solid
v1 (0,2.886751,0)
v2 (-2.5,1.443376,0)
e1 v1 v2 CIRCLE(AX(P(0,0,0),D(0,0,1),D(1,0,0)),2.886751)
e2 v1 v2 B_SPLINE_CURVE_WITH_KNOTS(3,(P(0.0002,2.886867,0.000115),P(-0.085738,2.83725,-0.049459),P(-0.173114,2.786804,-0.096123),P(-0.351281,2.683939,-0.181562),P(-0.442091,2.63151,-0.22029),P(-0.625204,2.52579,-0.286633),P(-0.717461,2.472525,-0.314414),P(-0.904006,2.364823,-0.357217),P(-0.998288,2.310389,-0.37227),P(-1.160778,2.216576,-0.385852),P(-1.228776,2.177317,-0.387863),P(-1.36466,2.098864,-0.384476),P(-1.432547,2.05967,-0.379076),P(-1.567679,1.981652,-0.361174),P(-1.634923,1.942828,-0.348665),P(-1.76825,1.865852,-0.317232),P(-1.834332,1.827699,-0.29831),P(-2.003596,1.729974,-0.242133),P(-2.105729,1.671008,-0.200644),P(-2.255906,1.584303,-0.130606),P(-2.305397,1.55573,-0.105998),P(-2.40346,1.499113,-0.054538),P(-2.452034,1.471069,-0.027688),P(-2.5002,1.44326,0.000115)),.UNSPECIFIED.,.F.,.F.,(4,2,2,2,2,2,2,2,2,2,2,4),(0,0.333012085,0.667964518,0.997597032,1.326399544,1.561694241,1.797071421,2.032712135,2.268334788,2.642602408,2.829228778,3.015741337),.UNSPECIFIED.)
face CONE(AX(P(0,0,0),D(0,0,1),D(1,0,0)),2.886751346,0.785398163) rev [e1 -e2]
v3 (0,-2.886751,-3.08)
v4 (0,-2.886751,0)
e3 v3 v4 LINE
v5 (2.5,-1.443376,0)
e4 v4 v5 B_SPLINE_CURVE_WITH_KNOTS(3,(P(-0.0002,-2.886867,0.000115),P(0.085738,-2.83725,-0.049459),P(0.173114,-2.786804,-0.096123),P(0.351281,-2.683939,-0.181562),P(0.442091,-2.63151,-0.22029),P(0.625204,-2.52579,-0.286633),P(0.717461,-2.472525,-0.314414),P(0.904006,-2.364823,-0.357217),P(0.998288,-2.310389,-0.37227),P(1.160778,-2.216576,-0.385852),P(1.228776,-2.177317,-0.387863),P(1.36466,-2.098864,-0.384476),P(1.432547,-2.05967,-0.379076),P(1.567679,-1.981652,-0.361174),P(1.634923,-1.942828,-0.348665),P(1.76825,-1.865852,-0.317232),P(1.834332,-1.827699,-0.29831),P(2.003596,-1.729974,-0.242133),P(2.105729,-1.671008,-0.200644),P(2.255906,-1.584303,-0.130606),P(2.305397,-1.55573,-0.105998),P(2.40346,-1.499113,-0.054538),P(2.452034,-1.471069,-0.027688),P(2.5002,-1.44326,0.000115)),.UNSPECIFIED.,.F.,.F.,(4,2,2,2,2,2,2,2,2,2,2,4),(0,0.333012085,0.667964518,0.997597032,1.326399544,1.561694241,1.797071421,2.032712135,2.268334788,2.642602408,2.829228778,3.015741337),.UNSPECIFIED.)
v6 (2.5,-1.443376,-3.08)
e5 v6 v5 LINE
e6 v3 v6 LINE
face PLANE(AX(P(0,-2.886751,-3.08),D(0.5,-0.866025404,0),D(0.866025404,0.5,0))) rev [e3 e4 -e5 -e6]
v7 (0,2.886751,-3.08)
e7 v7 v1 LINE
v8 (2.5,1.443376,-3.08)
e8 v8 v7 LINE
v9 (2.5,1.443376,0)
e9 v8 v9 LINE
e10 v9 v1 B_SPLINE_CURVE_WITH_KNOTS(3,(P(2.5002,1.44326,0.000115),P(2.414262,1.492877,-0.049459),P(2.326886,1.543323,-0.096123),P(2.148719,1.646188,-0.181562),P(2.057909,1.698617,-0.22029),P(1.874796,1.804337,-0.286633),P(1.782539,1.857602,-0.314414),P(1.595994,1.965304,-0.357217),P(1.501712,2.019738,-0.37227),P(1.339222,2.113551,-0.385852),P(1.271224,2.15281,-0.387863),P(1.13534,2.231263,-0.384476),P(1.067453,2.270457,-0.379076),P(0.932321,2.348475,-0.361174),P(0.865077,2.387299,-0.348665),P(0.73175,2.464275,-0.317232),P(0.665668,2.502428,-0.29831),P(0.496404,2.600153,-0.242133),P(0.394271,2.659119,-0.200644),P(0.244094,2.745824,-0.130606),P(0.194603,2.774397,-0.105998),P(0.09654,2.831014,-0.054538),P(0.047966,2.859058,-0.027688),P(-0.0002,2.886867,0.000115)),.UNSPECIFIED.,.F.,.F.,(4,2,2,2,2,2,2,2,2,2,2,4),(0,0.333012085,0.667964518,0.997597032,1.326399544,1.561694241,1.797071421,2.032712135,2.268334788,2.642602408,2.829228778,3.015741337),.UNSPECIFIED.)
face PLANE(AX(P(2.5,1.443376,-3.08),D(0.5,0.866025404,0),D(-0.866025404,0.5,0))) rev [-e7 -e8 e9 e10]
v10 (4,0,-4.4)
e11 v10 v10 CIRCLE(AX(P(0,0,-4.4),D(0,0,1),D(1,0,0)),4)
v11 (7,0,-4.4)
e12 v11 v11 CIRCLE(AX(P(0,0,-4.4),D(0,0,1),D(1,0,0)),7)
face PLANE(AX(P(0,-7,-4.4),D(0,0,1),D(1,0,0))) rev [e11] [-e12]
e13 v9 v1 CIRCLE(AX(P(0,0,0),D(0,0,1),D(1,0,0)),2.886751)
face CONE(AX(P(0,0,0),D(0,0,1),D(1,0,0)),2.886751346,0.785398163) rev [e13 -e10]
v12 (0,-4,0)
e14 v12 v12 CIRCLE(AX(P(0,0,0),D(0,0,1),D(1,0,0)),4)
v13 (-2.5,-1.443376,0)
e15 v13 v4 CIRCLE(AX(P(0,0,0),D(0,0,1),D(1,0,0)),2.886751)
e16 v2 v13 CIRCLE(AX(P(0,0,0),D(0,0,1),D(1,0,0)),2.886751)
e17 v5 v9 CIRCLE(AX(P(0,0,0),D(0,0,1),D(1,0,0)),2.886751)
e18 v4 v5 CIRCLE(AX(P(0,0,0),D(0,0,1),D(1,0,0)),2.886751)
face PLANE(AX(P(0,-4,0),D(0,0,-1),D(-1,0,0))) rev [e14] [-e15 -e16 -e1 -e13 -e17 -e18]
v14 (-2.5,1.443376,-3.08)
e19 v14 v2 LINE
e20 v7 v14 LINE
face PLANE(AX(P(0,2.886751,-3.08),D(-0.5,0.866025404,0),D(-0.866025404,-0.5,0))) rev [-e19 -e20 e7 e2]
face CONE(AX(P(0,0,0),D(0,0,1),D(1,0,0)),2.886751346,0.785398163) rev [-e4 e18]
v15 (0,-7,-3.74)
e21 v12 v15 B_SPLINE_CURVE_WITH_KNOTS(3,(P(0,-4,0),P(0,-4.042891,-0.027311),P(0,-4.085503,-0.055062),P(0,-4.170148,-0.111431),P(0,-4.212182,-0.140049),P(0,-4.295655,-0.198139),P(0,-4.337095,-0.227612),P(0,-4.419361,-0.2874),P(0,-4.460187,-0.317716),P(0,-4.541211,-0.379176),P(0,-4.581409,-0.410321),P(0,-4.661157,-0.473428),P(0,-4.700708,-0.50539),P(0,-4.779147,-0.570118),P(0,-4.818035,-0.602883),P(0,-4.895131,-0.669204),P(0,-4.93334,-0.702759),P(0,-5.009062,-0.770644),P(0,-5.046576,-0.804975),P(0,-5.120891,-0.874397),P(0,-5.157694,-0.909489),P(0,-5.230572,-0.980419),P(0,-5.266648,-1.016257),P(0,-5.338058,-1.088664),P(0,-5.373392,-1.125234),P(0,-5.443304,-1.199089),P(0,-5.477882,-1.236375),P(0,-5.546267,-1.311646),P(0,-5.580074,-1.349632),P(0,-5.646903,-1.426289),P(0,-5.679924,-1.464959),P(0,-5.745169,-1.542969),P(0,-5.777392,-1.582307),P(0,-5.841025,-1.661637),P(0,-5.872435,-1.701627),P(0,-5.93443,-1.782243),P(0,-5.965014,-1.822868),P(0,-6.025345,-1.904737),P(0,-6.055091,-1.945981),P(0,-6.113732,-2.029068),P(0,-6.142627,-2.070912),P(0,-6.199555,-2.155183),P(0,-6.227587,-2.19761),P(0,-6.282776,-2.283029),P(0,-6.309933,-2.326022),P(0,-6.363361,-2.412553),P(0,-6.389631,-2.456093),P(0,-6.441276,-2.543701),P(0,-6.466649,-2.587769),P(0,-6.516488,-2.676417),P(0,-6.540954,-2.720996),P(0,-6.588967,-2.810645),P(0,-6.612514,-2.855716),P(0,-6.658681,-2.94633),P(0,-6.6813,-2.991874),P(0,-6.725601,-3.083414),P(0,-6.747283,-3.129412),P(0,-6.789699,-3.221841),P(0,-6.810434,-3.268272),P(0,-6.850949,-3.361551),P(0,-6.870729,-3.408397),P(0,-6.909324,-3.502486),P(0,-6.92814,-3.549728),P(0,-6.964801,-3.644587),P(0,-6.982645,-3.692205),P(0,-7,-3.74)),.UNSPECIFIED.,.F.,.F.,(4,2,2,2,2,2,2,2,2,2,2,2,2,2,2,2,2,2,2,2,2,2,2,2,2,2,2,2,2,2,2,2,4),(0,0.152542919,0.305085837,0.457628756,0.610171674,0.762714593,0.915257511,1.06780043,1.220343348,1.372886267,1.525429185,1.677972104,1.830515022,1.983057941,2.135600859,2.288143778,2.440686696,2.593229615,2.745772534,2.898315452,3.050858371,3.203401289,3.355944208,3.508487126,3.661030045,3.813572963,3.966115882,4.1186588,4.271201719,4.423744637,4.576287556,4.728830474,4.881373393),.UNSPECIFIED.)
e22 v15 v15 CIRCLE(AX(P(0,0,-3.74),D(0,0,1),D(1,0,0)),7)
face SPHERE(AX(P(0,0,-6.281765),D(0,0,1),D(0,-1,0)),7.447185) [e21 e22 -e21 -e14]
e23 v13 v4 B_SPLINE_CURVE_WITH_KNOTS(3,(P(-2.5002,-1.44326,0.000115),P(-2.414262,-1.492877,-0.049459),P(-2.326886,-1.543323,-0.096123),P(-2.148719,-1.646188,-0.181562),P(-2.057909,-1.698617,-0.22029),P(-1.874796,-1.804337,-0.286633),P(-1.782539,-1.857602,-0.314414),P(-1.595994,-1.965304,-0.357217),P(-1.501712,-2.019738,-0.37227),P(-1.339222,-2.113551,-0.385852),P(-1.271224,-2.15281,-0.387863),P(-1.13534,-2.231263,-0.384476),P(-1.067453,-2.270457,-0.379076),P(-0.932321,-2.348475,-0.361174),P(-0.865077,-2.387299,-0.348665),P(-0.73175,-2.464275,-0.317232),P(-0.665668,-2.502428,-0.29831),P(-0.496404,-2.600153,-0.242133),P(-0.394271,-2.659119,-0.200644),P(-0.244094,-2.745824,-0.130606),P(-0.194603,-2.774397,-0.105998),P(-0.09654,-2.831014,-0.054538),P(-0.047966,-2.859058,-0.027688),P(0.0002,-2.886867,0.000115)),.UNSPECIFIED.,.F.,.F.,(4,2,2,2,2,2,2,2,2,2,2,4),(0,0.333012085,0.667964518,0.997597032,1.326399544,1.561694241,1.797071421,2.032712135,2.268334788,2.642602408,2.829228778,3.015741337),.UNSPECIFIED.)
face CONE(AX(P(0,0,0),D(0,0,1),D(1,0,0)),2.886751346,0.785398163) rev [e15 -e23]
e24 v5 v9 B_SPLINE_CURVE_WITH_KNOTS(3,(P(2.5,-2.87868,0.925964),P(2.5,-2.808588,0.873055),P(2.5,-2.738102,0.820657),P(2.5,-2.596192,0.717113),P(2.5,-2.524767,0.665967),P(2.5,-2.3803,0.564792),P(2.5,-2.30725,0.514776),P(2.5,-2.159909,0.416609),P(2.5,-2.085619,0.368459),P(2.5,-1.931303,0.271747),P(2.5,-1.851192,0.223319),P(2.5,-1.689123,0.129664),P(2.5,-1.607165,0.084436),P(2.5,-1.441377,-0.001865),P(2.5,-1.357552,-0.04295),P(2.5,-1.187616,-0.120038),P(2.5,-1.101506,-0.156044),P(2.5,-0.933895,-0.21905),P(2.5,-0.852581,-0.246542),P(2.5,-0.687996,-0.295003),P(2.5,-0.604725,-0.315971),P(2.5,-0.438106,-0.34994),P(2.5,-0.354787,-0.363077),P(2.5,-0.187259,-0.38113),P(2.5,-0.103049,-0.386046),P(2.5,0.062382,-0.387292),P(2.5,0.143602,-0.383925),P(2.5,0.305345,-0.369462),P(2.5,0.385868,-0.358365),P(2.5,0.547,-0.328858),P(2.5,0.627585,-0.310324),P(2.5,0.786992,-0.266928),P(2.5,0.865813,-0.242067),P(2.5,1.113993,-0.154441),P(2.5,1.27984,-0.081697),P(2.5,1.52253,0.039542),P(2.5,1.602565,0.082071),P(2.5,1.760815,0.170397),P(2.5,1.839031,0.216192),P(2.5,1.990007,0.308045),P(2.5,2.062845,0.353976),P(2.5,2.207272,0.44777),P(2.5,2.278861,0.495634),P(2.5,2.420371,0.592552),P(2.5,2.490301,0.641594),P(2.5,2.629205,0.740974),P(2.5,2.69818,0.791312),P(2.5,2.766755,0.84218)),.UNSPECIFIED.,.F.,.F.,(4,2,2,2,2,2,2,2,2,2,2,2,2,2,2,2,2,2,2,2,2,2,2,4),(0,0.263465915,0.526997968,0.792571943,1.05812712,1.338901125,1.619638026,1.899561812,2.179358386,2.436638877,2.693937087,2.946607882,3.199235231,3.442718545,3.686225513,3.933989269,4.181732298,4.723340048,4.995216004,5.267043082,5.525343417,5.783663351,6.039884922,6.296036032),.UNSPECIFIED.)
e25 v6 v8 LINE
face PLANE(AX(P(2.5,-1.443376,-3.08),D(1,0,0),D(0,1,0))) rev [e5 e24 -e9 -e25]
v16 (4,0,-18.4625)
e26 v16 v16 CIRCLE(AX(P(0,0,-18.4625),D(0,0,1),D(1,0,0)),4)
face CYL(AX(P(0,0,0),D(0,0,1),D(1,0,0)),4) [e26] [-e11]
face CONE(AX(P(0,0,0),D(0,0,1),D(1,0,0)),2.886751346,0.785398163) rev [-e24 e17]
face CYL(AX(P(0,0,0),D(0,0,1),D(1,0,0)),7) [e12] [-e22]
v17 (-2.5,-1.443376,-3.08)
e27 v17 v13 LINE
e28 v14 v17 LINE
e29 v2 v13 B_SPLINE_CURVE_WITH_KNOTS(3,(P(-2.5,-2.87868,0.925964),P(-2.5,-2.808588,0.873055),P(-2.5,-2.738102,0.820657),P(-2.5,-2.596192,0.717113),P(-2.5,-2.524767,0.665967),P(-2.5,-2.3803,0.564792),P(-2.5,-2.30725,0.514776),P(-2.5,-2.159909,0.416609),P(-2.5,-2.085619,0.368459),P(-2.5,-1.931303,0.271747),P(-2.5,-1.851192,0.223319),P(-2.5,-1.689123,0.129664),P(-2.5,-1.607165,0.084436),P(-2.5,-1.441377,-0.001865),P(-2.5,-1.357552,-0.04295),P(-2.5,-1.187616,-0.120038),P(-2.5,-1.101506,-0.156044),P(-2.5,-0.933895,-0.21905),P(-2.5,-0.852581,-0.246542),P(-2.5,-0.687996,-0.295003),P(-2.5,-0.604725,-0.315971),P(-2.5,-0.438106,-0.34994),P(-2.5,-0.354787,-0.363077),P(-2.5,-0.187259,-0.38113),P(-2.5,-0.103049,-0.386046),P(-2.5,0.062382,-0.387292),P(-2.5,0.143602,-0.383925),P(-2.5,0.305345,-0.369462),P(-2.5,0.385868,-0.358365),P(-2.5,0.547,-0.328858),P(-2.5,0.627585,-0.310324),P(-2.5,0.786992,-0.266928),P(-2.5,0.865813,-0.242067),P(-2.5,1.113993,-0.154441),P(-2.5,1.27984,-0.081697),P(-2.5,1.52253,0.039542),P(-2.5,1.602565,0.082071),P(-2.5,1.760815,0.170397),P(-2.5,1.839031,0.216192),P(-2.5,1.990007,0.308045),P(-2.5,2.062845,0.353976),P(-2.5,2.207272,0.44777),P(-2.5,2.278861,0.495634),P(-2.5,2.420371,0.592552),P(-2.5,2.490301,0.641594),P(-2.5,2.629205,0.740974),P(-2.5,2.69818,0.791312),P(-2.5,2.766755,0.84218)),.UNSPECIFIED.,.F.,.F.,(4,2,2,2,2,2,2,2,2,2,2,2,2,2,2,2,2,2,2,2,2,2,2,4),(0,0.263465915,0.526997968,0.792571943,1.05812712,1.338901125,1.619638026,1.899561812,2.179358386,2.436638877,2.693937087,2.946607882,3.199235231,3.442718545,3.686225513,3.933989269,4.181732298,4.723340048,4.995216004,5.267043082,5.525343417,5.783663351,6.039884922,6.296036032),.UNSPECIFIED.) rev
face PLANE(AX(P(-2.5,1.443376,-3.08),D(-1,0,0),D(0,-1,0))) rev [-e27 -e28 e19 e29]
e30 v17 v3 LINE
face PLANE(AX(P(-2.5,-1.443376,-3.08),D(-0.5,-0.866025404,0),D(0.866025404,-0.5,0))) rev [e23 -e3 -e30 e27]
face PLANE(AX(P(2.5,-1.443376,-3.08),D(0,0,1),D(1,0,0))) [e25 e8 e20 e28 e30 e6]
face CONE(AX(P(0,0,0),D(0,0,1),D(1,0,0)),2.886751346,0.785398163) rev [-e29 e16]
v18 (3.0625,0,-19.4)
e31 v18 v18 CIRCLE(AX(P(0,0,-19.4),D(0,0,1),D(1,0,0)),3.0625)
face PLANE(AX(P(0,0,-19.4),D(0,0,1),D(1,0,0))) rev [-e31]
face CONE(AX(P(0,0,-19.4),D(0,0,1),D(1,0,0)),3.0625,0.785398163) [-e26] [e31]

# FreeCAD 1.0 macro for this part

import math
import FreeCAD as App
import Part
import Sketcher
from FreeCAD import Vector
Q = App.Units.Quantity

doc = App.newDocument("Part")
params = doc.addObject("Spreadsheet::Sheet", "Params")
for row, (alias, value) in enumerate([
    ("sketch1_width", "4 mm"),
    ("sketch1_height", "15 mm"),
    ("revolution_angle", "360 deg"),
    ("sketch2_width", "4 mm"),
    ("sketch2_width2", "7 mm"),
    ("sketch2_height", "4.4 mm"),
    ("sketch2_height2", "0.66 mm"),
    ("revolution2_angle", "360 deg"),
    ("pocket1_length", "3.08 mm"),
    ("groove_angle", "360 deg"),
], start=1):
    params.set(f"A{row}", alias)
    params.set(f"B{row}", "=" + value)
    params.setAlias(f"B{row}", alias)

body = doc.addObject("PartDesign::Body", "Body")

sketch1 = body.newObject("Sketcher::SketchObject", "Sketch")
sketch1.AttachmentSupport = (doc.getObject("YZ_Plane"), [""])
sketch1.MapMode = "FlatFace"
sketch1.addGeometry(Part.LineSegment(Vector(3.1, -19.4, 0), Vector(4, -18.5, 0)), False)
sketch1.addGeometry(Part.LineSegment(Vector(4, -18.5, 0), Vector(4, -4.4, 0)), False)
sketch1.addGeometry(Part.LineSegment(Vector(4, -4.4, 0), Vector(0, -4.4, 0)), False)
sketch1.addGeometry(Part.LineSegment(Vector(0, -4.4, 0), Vector(0, -19.4, 0)), False)
sketch1.addGeometry(Part.LineSegment(Vector(0, -19.4, 0), Vector(3.1, -19.4, 0)), False)
sketch1.addConstraint(Sketcher.Constraint("Coincident", 0, 2, 1, 1))
sketch1.addConstraint(Sketcher.Constraint("Coincident", 1, 2, 2, 1))
sketch1.addConstraint(Sketcher.Constraint("Coincident", 2, 2, 3, 1))
sketch1.addConstraint(Sketcher.Constraint("Coincident", 3, 2, 4, 1))
sketch1.addConstraint(Sketcher.Constraint("Coincident", 4, 2, 0, 1))
sketch1.addConstraint(Sketcher.Constraint("Vertical", 1))
sketch1.addConstraint(Sketcher.Constraint("Horizontal", 2))
sketch1.addConstraint(Sketcher.Constraint("Vertical", 3))
sketch1.addConstraint(Sketcher.Constraint("Horizontal", 4))
sketch1.addConstraint(Sketcher.Constraint("PointOnObject", 2, 2, -2))
sketch1.addConstraint(Sketcher.Constraint("DistanceX", 2, 2, 2, 1, Q("4 mm")))
sketch1.addConstraint(Sketcher.Constraint("DistanceY", 3, 2, 3, 1, Q("15 mm")))
sketch1.addConstraint(Sketcher.Constraint("Angle", 0, Q("45 deg")))
sketch1.addConstraint(Sketcher.Constraint("DistanceY", 1, 2, -1, 1, Q("4.4 mm")))
sketch1.addConstraint(Sketcher.Constraint("DistanceX", 4, 1, 4, 2, Q("3.0625 mm")))
sketch1.setExpression("Constraints[10]", "Params.sketch1_width")
sketch1.setExpression("Constraints[11]", "Params.sketch1_height")
revolution = body.newObject("PartDesign::Revolution", "Revolution")
revolution.Profile = sketch1
revolution.ReferenceAxis = (sketch1, ["V_Axis"])
revolution.setExpression("Angle", "Params.revolution_angle")

sketch2 = body.newObject("Sketcher::SketchObject", "Sketch001")
sketch2.AttachmentSupport = (doc.getObject("YZ_Plane"), [""])
sketch2.MapMode = "FlatFace"
sketch2.addGeometry(Part.LineSegment(Vector(7, -4.4, 0), Vector(7, -3.7, 0)), False)
sketch2.addGeometry(Part.ArcOfCircle(Part.Circle(Vector(0, -6.3, 0), Vector(0, 0, 1), 7.4), math.radians(20), math.radians(58)), False)
sketch2.addGeometry(Part.LineSegment(Vector(4, 0, 0), Vector(0, 0, 0)), False)
sketch2.addGeometry(Part.LineSegment(Vector(0, 0, 0), Vector(0, -4.4, 0)), False)
sketch2.addGeometry(Part.LineSegment(Vector(0, -4.4, 0), Vector(7, -4.4, 0)), False)
sketch2.addConstraint(Sketcher.Constraint("Coincident", 0, 2, 1, 1))
sketch2.addConstraint(Sketcher.Constraint("Coincident", 1, 2, 2, 1))
sketch2.addConstraint(Sketcher.Constraint("Coincident", 2, 2, 3, 1))
sketch2.addConstraint(Sketcher.Constraint("Coincident", 3, 2, 4, 1))
sketch2.addConstraint(Sketcher.Constraint("Coincident", 4, 2, 0, 1))
sketch2.addConstraint(Sketcher.Constraint("Vertical", 0))
sketch2.addConstraint(Sketcher.Constraint("Horizontal", 2))
sketch2.addConstraint(Sketcher.Constraint("Vertical", 3))
sketch2.addConstraint(Sketcher.Constraint("Horizontal", 4))
sketch2.addConstraint(Sketcher.Constraint("Coincident", 2, 2, -1, 1))
sketch2.addConstraint(Sketcher.Constraint("PointOnObject", 1, 3, -2))
sketch2.addConstraint(Sketcher.Constraint("DistanceX", 2, 2, 2, 1, Q("4 mm")))
sketch2.addConstraint(Sketcher.Constraint("DistanceX", 4, 1, 4, 2, Q("7 mm")))
sketch2.addConstraint(Sketcher.Constraint("DistanceY", 3, 2, 3, 1, Q("4.4 mm")))
sketch2.addConstraint(Sketcher.Constraint("DistanceY", 0, 1, 0, 2, Q("0.66 mm")))
sketch2.setExpression("Constraints[11]", "Params.sketch2_width")
sketch2.setExpression("Constraints[12]", "Params.sketch2_width2")
sketch2.setExpression("Constraints[13]", "Params.sketch2_height")
sketch2.setExpression("Constraints[14]", "Params.sketch2_height2")
revolution2 = body.newObject("PartDesign::Revolution", "Revolution001")
revolution2.Profile = sketch2
revolution2.ReferenceAxis = (sketch2, ["V_Axis"])
revolution2.setExpression("Angle", "Params.revolution2_angle")

sketch3 = body.newObject("Sketcher::SketchObject", "Sketch002")
sketch3.AttachmentSupport = (doc.getObject("XY_Plane"), [""])
sketch3.MapMode = "FlatFace"
sketch3.addGeometry(Part.LineSegment(Vector(2.5, -1.4, 0), Vector(2.5, 1.4, 0)), False)
sketch3.addGeometry(Part.LineSegment(Vector(2.5, 1.4, 0), Vector(0, 2.9, 0)), False)
sketch3.addGeometry(Part.LineSegment(Vector(0, 2.9, 0), Vector(-2.5, 1.4, 0)), False)
sketch3.addGeometry(Part.LineSegment(Vector(-2.5, 1.4, 0), Vector(-2.5, -1.4, 0)), False)
sketch3.addGeometry(Part.LineSegment(Vector(-2.5, -1.4, 0), Vector(0, -2.9, 0)), False)
sketch3.addGeometry(Part.LineSegment(Vector(0, -2.9, 0), Vector(2.5, -1.4, 0)), False)
sketch3.addConstraint(Sketcher.Constraint("Coincident", 0, 2, 1, 1))
sketch3.addConstraint(Sketcher.Constraint("Coincident", 1, 2, 2, 1))
sketch3.addConstraint(Sketcher.Constraint("Coincident", 2, 2, 3, 1))
sketch3.addConstraint(Sketcher.Constraint("Coincident", 3, 2, 4, 1))
sketch3.addConstraint(Sketcher.Constraint("Coincident", 4, 2, 5, 1))
sketch3.addConstraint(Sketcher.Constraint("Coincident", 5, 2, 0, 1))
sketch3.addConstraint(Sketcher.Constraint("Vertical", 0))
sketch3.addConstraint(Sketcher.Constraint("Vertical", 3))
sketch3.addConstraint(Sketcher.Constraint("Symmetric", 0, 2, 3, 2, -1, 1))
sketch3.addConstraint(Sketcher.Constraint("Symmetric", 1, 2, 4, 2, -1, 1))
sketch3.addConstraint(Sketcher.Constraint("PointOnObject", 1, 2, -2))
sketch3.addConstraint(Sketcher.Constraint("Parallel", 2, 5))
sketch3.addConstraint(Sketcher.Constraint("Horizontal", 0, 2, 2, 2))
sketch3.addConstraint(Sketcher.Constraint("Angle", 1, Q("150 deg")))
sketch3.addConstraint(Sketcher.Constraint("DistanceX", 2, 2, 0, 2, Q("5 mm")))
sketch3.addConstraint(Sketcher.Constraint("DistanceY", 0, 1, 0, 2, Q("2.886751 mm")))
pocket1 = body.newObject("PartDesign::Pocket", "Pocket")
pocket1.Profile = sketch3
pocket1.setExpression("Length", "Params.pocket1_length")

sketch4 = body.newObject("Sketcher::SketchObject", "Sketch003")
sketch4.AttachmentSupport = (doc.getObject("YZ_Plane"), [""])
sketch4.MapMode = "FlatFace"
sketch4.addGeometry(Part.LineSegment(Vector(0, 0, 0), Vector(-2.9, 0, 0)), False)
sketch4.addGeometry(Part.LineSegment(Vector(-2.9, 0, 0), Vector(0, -2.9, 0)), False)
sketch4.addGeometry(Part.LineSegment(Vector(0, -2.9, 0), Vector(0, 0, 0)), False)
sketch4.addConstraint(Sketcher.Constraint("Coincident", 0, 2, 1, 1))
sketch4.addConstraint(Sketcher.Constraint("Coincident", 1, 2, 2, 1))
sketch4.addConstraint(Sketcher.Constraint("Coincident", 2, 2, 0, 1))
sketch4.addConstraint(Sketcher.Constraint("Horizontal", 0))
sketch4.addConstraint(Sketcher.Constraint("Vertical", 2))
sketch4.addConstraint(Sketcher.Constraint("Coincident", 2, 2, -1, 1))
sketch4.addConstraint(Sketcher.Constraint("Equal", 0, 2))
sketch4.addConstraint(Sketcher.Constraint("DistanceX", 0, 2, 0, 1, Q("2.886751 mm")))
groove = body.newObject("PartDesign::Groove", "Groove")
groove.Profile = sketch4
groove.ReferenceAxis = (sketch4, ["V_Axis"])
groove.setExpression("Angle", "Params.groove_angle")

doc.recompute()
